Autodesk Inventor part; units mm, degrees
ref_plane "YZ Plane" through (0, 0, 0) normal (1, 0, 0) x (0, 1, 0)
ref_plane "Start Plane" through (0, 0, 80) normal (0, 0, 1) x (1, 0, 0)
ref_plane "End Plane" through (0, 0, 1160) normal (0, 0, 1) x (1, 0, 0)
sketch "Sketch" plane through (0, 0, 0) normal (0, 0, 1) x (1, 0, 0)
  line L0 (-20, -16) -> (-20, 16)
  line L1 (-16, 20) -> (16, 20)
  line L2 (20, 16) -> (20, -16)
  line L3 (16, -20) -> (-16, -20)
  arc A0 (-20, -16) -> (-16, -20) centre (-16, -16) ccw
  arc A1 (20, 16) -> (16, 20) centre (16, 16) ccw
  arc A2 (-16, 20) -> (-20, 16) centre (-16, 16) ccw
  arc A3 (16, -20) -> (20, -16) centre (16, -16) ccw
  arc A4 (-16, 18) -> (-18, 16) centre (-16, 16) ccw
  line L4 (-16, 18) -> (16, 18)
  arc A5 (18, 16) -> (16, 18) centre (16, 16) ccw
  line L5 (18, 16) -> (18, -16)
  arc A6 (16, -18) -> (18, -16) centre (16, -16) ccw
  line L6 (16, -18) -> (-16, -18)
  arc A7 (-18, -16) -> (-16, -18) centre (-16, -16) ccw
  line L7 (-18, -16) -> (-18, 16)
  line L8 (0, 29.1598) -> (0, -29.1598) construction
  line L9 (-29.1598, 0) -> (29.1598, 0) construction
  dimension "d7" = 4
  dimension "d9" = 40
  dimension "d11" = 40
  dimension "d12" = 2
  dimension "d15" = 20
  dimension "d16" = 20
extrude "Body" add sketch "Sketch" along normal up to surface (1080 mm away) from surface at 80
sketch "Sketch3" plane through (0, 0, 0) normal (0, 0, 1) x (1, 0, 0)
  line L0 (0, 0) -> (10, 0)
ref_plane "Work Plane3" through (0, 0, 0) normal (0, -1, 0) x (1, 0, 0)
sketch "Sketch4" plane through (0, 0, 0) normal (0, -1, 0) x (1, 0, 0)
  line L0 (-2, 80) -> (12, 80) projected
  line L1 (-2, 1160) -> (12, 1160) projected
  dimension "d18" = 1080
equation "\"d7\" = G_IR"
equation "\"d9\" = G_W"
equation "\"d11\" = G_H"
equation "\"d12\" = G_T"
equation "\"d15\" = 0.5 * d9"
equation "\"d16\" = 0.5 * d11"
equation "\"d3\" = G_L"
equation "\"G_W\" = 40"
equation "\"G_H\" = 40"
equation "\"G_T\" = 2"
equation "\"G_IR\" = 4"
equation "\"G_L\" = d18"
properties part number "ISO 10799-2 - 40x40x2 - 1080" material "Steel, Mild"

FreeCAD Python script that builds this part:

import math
import FreeCAD as App
import Part
import Sketcher

V = App.Vector
Q = App.Units.Quantity

doc = App.newDocument("Part")
body = doc.addObject("PartDesign::Body", "Body")

sketch1 = body.newObject("Sketcher::SketchObject", "Sketch")
sketch1.AttachmentSupport = (doc.getObject("XY_Plane"), [""])
sketch1.MapMode = "FlatFace"
sketch1.AttachmentOffset = App.Placement(V(0, 0, 80), App.Rotation())
sketch1.addGeometry([
    Part.LineSegment(V(-20, 16, 0), V(-20, -16, 0)),
    Part.ArcOfCircle(Part.Circle(V(-16, -16, 0), V(0, 0, 1), 4), math.radians(180), math.radians(270)),
    Part.LineSegment(V(-16, -20, 0), V(16, -20, 0)),
    Part.ArcOfCircle(Part.Circle(V(16, -16, 0), V(0, 0, 1), 4), math.radians(-90), math.radians(0)),
    Part.LineSegment(V(20, -16, 0), V(20, 16, 0)),
    Part.ArcOfCircle(Part.Circle(V(16, 16, 0), V(0, 0, 1), 4), math.radians(0), math.radians(90)),
    Part.LineSegment(V(16, 20, 0), V(-16, 20, 0)),
    Part.ArcOfCircle(Part.Circle(V(-16, 16, 0), V(0, 0, 1), 4), math.radians(90), math.radians(180)),
    Part.ArcOfCircle(Part.Circle(V(-16, 16, 0), V(0, 0, 1), 2), math.radians(90), math.radians(180)),
    Part.LineSegment(V(-16, 18, 0), V(16, 18, 0)),
    Part.ArcOfCircle(Part.Circle(V(16, 16, 0), V(0, 0, 1), 2), math.radians(0), math.radians(90)),
    Part.LineSegment(V(18, 16, 0), V(18, -16, 0)),
    Part.ArcOfCircle(Part.Circle(V(16, -16, 0), V(0, 0, 1), 2), math.radians(-90), math.radians(0)),
    Part.LineSegment(V(16, -18, 0), V(-16, -18, 0)),
    Part.ArcOfCircle(Part.Circle(V(-16, -16, 0), V(0, 0, 1), 2), math.radians(180), math.radians(270)),
    Part.LineSegment(V(-18, -16, 0), V(-18, 16, 0)),
], False)
sketch1.addConstraint([
    Sketcher.Constraint("Tangent", 0, 2, 1, 1),
    Sketcher.Constraint("Tangent", 1, 2, 2, 1),
    Sketcher.Constraint("Tangent", 2, 2, 3, 1),
    Sketcher.Constraint("Tangent", 3, 2, 4, 1),
    Sketcher.Constraint("Tangent", 4, 2, 5, 1),
    Sketcher.Constraint("Tangent", 5, 2, 6, 1),
    Sketcher.Constraint("Tangent", 6, 2, 7, 1),
    Sketcher.Constraint("Tangent", 7, 2, 0, 1),
    Sketcher.Constraint("Tangent", 8, 1, 9, 1),
    Sketcher.Constraint("Tangent", 9, 2, 10, 2),
    Sketcher.Constraint("Tangent", 10, 1, 11, 1),
    Sketcher.Constraint("Tangent", 11, 2, 12, 2),
    Sketcher.Constraint("Tangent", 12, 1, 13, 1),
    Sketcher.Constraint("Tangent", 13, 2, 14, 2),
    Sketcher.Constraint("Tangent", 14, 1, 15, 1),
    Sketcher.Constraint("Tangent", 15, 2, 8, 2),
    Sketcher.Constraint("Vertical", 0),
    Sketcher.Constraint("Horizontal", 2),
    Sketcher.Constraint("Vertical", 4),
    Sketcher.Constraint("Horizontal", 6),
    Sketcher.Constraint("Horizontal", 9),
    Sketcher.Constraint("Vertical", 11),
    Sketcher.Constraint("Horizontal", 13),
    Sketcher.Constraint("Vertical", 15),
    Sketcher.Constraint("Coincident", 8, 3, 7, 3),
    Sketcher.Constraint("Coincident", 10, 3, 5, 3),
    Sketcher.Constraint("Coincident", 12, 3, 3, 3),
    Sketcher.Constraint("Equal", 1, 3),
    Sketcher.Constraint("Equal", 3, 5),
    Sketcher.Constraint("Equal", 5, 7),
    Sketcher.Constraint("Equal", 12, 14),
    Sketcher.Constraint("Symmetric", 1, 3, 5, 3, -1, 1),
    Sketcher.Constraint("Equal", 13, 0),
    Sketcher.Constraint("Radius", 1, Q("4 mm")),
    Sketcher.Constraint("Radius", 8, Q("2 mm")),
    Sketcher.Constraint("DistanceX", 0, 2, -1, 1, Q("20 mm")),
])
pad1 = body.newObject("PartDesign::Pad", "Pad")
pad1.Profile = sketch1
pad1.Length = 1080

doc.recompute()
